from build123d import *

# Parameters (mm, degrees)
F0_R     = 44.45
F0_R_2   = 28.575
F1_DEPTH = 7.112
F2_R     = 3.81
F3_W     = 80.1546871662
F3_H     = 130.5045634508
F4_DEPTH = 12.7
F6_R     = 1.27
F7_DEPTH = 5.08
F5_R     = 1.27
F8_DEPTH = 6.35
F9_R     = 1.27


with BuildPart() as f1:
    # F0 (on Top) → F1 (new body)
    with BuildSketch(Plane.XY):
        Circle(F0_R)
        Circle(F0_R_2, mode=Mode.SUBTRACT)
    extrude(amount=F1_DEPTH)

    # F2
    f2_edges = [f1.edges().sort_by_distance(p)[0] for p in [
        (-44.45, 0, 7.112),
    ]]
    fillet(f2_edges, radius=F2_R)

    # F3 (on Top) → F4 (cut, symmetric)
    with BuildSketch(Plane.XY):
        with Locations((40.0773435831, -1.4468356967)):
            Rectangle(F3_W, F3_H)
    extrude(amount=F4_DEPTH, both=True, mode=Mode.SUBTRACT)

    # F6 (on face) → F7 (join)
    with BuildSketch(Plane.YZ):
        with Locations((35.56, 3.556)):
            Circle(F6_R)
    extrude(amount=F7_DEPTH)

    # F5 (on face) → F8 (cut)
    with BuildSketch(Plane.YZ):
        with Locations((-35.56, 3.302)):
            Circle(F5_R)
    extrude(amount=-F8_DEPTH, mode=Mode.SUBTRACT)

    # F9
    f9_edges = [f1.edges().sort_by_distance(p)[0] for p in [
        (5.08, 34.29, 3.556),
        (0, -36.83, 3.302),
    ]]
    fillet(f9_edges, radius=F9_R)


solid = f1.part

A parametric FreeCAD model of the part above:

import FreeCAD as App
import Part
import Sketcher

V = App.Vector
Q = App.Units.Quantity


def edges_at(feature, points):
    """Names of the edges that pass closest to the given points."""
    edges = feature.Shape.Edges
    near = lambda p: min(range(len(edges)), key=lambda i: edges[i].distToShape(Part.Vertex(*p))[0])
    return sorted({f"Edge{near(p) + 1}" for p in points})


def add_polygon(sketch, points):
    """Adds a closed chain of lines whose ends are joined by coincident constraints."""
    first, n = sketch.GeometryCount, len(points)
    for a, b in zip(points, points[1:] + points[:1]):
        sketch.addGeometry(Part.LineSegment(App.Vector(*a, 0), App.Vector(*b, 0)), False)
    for i in range(n):
        sketch.addConstraint(Sketcher.Constraint("Coincident", first + i, 2, first + (i + 1) % n, 1))

doc = App.newDocument("Part")
body = doc.addObject("PartDesign::Body", "Body")

sketch1 = body.newObject("Sketcher::SketchObject", "Sketch")
sketch1.AttachmentSupport = (doc.getObject("XY_Plane"), [""])
sketch1.MapMode = "FlatFace"
sketch1.addGeometry([
    Part.Circle(V(0, 0, 0), V(0, 0, 1), 44),
    Part.Circle(V(0, 0, 0), V(0, 0, 1), 29),
], False)
sketch1.addConstraint([
    Sketcher.Constraint("Coincident", 0, 3, -1, 1),
    Sketcher.Constraint("Coincident", 1, 3, -1, 1),
    Sketcher.Constraint("Diameter", 0, Q("3.5 in")),
    Sketcher.Constraint("Diameter", 1, Q("2.25 in")),
])
pad1 = body.newObject("PartDesign::Pad", "Pad")
pad1.Profile = sketch1
pad1.Length = Q("0.28 in")
doc.recompute()

fillet = body.newObject("PartDesign::Fillet", "Fillet")
fillet.Base = (pad1, edges_at(pad1, [(-44.45, 0, 7.112)]))
fillet.Radius = Q("0.15 in")

sketch2 = body.newObject("Sketcher::SketchObject", "Sketch001")
sketch2.AttachmentSupport = (doc.getObject("XY_Plane"), [""])
sketch2.MapMode = "FlatFace"
add_polygon(sketch2, [(0, 64), (0, -67), (80, -67), (80, 64)])
sketch2.addConstraint([
    Sketcher.Constraint("Vertical", 0),
    Sketcher.Constraint("Horizontal", 1),
    Sketcher.Constraint("Vertical", 2),
    Sketcher.Constraint("Horizontal", 3),
    Sketcher.Constraint("PointOnObject", 0, 2, -2),
    Sketcher.Constraint("DistanceX", 1, 1, 1, 2, Q("80.154687 mm")),
    Sketcher.Constraint("DistanceY", 0, 2, 0, 1, Q("130.504563 mm")),
    Sketcher.Constraint("DistanceY", 0, 2, -1, 1, Q("66.699117 mm")),
])
pocket1 = body.newObject("PartDesign::Pocket", "Pocket")
pocket1.Profile = sketch2
pocket1.Length = Q("1 in")
pocket1.Midplane = True

sketch3 = body.newObject("Sketcher::SketchObject", "Sketch002")
sketch3.AttachmentSupport = (doc.getObject("YZ_Plane"), [""])
sketch3.MapMode = "FlatFace"
sketch3.addGeometry(Part.Circle(V(35.6, 3.6, 0), V(0, 0, 1), 1.3), False)
sketch3.addConstraint([
    Sketcher.Constraint("Diameter", 0, Q("0.1 in")),
    Sketcher.Constraint("DistanceX", -1, 1, 0, 3, Q("1.4 in")),
    Sketcher.Constraint("DistanceY", -1, 1, 0, 3, Q("0.14 in")),
])
pad2 = body.newObject("PartDesign::Pad", "Pad001")
pad2.Profile = sketch3
pad2.Length = Q("0.2 in")

sketch4 = body.newObject("Sketcher::SketchObject", "Sketch003")
sketch4.AttachmentSupport = (doc.getObject("YZ_Plane"), [""])
sketch4.MapMode = "FlatFace"
sketch4.addGeometry(Part.Circle(V(-35.6, 3.3, 0), V(0, 0, 1), 1.3), False)
sketch4.addConstraint([
    Sketcher.Constraint("Diameter", 0, Q("0.1 in")),
    Sketcher.Constraint("DistanceX", 0, 3, -1, 1, Q("1.4 in")),
    Sketcher.Constraint("DistanceY", -1, 1, 0, 3, Q("0.13 in")),
])
pocket2 = body.newObject("PartDesign::Pocket", "Pocket001")
pocket2.Profile = sketch4
pocket2.Length = Q("0.25 in")
doc.recompute()

fillet2 = body.newObject("PartDesign::Fillet", "Fillet001")
fillet2.Base = (pocket2, edges_at(pocket2, [(5.08, 34.29, 3.556), (0, -36.83, 3.302)]))
fillet2.Radius = Q("0.05 in")

doc.recompute()
